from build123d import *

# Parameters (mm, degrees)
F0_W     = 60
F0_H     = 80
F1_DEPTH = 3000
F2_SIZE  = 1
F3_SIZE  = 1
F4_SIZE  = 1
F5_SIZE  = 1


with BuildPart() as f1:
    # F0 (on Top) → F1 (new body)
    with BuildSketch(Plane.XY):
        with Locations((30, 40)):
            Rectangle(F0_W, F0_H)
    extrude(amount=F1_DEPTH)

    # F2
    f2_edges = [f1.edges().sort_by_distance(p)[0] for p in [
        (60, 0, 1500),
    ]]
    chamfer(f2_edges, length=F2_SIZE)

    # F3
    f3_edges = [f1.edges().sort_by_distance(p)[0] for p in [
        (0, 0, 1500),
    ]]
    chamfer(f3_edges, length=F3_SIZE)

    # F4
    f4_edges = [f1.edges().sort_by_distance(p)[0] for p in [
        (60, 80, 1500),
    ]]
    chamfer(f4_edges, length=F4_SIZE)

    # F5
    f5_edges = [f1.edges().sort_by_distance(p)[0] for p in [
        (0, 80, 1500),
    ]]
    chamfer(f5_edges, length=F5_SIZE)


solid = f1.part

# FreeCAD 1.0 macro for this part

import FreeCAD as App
import Part
import Sketcher
from FreeCAD import Vector
Q = App.Units.Quantity


def edges_at(feature, points):
    """Names of the edges that pass closest to the given points."""
    edges = feature.Shape.Edges
    near = lambda p: min(range(len(edges)), key=lambda i: edges[i].distToShape(Part.Vertex(*p))[0])
    return sorted({f"Edge{near(p) + 1}" for p in points})


def add_polygon(sketch, points):
    """Adds a closed chain of lines whose ends are joined by coincident constraints."""
    first, n = sketch.GeometryCount, len(points)
    for a, b in zip(points, points[1:] + points[:1]):
        sketch.addGeometry(Part.LineSegment(App.Vector(*a, 0), App.Vector(*b, 0)), False)
    for i in range(n):
        sketch.addConstraint(Sketcher.Constraint("Coincident", first + i, 2, first + (i + 1) % n, 1))

doc = App.newDocument("Part")
body = doc.addObject("PartDesign::Body", "Body")

# Sketch on XY plane
sketch1 = doc.addObject("Sketcher::SketchObject", "Sketch")
body.addObject(sketch1)
sketch1.AttachmentSupport = (doc.XY_Plane, [""])
sketch1.MapMode = "FlatFace"
add_polygon(sketch1, [(0, 80), (0, 0), (60, 0), (60, 80)])  # lines 0-3
sketch1.addConstraint([
    Sketcher.Constraint("Vertical", 0),
    Sketcher.Constraint("Horizontal", 1),
    Sketcher.Constraint("Vertical", 2),
    Sketcher.Constraint("Horizontal", 3),
    Sketcher.Constraint("Coincident", 0, 2, -1, 1),
    Sketcher.Constraint("DistanceX", 1, 1, 1, 2, Q("60 mm")),
    Sketcher.Constraint("DistanceY", 0, 2, 0, 1, Q("80 mm")),
])
pad1 = doc.addObject("PartDesign::Pad", "Pad")
body.addObject(pad1)
pad1.Profile = sketch1
pad1.Length = 3000
doc.recompute()

chamfer = doc.addObject("PartDesign::Chamfer", "Chamfer")
body.addObject(chamfer)
chamfer.Base = (pad1, edges_at(pad1, [(60, 0, 1500)]))
chamfer.Size = 1
doc.recompute()

chamfer2 = doc.addObject("PartDesign::Chamfer", "Chamfer001")
body.addObject(chamfer2)
chamfer2.Base = (chamfer, edges_at(chamfer, [(0, 0, 1500)]))
chamfer2.Size = 1
doc.recompute()

chamfer3 = doc.addObject("PartDesign::Chamfer", "Chamfer002")
body.addObject(chamfer3)
chamfer3.Base = (chamfer2, edges_at(chamfer2, [(60, 80, 1500)]))
chamfer3.Size = 1
doc.recompute()

chamfer4 = doc.addObject("PartDesign::Chamfer", "Chamfer003")
body.addObject(chamfer4)
chamfer4.Base = (chamfer3, edges_at(chamfer3, [(0, 80, 1500)]))
chamfer4.Size = 1

doc.recompute()
